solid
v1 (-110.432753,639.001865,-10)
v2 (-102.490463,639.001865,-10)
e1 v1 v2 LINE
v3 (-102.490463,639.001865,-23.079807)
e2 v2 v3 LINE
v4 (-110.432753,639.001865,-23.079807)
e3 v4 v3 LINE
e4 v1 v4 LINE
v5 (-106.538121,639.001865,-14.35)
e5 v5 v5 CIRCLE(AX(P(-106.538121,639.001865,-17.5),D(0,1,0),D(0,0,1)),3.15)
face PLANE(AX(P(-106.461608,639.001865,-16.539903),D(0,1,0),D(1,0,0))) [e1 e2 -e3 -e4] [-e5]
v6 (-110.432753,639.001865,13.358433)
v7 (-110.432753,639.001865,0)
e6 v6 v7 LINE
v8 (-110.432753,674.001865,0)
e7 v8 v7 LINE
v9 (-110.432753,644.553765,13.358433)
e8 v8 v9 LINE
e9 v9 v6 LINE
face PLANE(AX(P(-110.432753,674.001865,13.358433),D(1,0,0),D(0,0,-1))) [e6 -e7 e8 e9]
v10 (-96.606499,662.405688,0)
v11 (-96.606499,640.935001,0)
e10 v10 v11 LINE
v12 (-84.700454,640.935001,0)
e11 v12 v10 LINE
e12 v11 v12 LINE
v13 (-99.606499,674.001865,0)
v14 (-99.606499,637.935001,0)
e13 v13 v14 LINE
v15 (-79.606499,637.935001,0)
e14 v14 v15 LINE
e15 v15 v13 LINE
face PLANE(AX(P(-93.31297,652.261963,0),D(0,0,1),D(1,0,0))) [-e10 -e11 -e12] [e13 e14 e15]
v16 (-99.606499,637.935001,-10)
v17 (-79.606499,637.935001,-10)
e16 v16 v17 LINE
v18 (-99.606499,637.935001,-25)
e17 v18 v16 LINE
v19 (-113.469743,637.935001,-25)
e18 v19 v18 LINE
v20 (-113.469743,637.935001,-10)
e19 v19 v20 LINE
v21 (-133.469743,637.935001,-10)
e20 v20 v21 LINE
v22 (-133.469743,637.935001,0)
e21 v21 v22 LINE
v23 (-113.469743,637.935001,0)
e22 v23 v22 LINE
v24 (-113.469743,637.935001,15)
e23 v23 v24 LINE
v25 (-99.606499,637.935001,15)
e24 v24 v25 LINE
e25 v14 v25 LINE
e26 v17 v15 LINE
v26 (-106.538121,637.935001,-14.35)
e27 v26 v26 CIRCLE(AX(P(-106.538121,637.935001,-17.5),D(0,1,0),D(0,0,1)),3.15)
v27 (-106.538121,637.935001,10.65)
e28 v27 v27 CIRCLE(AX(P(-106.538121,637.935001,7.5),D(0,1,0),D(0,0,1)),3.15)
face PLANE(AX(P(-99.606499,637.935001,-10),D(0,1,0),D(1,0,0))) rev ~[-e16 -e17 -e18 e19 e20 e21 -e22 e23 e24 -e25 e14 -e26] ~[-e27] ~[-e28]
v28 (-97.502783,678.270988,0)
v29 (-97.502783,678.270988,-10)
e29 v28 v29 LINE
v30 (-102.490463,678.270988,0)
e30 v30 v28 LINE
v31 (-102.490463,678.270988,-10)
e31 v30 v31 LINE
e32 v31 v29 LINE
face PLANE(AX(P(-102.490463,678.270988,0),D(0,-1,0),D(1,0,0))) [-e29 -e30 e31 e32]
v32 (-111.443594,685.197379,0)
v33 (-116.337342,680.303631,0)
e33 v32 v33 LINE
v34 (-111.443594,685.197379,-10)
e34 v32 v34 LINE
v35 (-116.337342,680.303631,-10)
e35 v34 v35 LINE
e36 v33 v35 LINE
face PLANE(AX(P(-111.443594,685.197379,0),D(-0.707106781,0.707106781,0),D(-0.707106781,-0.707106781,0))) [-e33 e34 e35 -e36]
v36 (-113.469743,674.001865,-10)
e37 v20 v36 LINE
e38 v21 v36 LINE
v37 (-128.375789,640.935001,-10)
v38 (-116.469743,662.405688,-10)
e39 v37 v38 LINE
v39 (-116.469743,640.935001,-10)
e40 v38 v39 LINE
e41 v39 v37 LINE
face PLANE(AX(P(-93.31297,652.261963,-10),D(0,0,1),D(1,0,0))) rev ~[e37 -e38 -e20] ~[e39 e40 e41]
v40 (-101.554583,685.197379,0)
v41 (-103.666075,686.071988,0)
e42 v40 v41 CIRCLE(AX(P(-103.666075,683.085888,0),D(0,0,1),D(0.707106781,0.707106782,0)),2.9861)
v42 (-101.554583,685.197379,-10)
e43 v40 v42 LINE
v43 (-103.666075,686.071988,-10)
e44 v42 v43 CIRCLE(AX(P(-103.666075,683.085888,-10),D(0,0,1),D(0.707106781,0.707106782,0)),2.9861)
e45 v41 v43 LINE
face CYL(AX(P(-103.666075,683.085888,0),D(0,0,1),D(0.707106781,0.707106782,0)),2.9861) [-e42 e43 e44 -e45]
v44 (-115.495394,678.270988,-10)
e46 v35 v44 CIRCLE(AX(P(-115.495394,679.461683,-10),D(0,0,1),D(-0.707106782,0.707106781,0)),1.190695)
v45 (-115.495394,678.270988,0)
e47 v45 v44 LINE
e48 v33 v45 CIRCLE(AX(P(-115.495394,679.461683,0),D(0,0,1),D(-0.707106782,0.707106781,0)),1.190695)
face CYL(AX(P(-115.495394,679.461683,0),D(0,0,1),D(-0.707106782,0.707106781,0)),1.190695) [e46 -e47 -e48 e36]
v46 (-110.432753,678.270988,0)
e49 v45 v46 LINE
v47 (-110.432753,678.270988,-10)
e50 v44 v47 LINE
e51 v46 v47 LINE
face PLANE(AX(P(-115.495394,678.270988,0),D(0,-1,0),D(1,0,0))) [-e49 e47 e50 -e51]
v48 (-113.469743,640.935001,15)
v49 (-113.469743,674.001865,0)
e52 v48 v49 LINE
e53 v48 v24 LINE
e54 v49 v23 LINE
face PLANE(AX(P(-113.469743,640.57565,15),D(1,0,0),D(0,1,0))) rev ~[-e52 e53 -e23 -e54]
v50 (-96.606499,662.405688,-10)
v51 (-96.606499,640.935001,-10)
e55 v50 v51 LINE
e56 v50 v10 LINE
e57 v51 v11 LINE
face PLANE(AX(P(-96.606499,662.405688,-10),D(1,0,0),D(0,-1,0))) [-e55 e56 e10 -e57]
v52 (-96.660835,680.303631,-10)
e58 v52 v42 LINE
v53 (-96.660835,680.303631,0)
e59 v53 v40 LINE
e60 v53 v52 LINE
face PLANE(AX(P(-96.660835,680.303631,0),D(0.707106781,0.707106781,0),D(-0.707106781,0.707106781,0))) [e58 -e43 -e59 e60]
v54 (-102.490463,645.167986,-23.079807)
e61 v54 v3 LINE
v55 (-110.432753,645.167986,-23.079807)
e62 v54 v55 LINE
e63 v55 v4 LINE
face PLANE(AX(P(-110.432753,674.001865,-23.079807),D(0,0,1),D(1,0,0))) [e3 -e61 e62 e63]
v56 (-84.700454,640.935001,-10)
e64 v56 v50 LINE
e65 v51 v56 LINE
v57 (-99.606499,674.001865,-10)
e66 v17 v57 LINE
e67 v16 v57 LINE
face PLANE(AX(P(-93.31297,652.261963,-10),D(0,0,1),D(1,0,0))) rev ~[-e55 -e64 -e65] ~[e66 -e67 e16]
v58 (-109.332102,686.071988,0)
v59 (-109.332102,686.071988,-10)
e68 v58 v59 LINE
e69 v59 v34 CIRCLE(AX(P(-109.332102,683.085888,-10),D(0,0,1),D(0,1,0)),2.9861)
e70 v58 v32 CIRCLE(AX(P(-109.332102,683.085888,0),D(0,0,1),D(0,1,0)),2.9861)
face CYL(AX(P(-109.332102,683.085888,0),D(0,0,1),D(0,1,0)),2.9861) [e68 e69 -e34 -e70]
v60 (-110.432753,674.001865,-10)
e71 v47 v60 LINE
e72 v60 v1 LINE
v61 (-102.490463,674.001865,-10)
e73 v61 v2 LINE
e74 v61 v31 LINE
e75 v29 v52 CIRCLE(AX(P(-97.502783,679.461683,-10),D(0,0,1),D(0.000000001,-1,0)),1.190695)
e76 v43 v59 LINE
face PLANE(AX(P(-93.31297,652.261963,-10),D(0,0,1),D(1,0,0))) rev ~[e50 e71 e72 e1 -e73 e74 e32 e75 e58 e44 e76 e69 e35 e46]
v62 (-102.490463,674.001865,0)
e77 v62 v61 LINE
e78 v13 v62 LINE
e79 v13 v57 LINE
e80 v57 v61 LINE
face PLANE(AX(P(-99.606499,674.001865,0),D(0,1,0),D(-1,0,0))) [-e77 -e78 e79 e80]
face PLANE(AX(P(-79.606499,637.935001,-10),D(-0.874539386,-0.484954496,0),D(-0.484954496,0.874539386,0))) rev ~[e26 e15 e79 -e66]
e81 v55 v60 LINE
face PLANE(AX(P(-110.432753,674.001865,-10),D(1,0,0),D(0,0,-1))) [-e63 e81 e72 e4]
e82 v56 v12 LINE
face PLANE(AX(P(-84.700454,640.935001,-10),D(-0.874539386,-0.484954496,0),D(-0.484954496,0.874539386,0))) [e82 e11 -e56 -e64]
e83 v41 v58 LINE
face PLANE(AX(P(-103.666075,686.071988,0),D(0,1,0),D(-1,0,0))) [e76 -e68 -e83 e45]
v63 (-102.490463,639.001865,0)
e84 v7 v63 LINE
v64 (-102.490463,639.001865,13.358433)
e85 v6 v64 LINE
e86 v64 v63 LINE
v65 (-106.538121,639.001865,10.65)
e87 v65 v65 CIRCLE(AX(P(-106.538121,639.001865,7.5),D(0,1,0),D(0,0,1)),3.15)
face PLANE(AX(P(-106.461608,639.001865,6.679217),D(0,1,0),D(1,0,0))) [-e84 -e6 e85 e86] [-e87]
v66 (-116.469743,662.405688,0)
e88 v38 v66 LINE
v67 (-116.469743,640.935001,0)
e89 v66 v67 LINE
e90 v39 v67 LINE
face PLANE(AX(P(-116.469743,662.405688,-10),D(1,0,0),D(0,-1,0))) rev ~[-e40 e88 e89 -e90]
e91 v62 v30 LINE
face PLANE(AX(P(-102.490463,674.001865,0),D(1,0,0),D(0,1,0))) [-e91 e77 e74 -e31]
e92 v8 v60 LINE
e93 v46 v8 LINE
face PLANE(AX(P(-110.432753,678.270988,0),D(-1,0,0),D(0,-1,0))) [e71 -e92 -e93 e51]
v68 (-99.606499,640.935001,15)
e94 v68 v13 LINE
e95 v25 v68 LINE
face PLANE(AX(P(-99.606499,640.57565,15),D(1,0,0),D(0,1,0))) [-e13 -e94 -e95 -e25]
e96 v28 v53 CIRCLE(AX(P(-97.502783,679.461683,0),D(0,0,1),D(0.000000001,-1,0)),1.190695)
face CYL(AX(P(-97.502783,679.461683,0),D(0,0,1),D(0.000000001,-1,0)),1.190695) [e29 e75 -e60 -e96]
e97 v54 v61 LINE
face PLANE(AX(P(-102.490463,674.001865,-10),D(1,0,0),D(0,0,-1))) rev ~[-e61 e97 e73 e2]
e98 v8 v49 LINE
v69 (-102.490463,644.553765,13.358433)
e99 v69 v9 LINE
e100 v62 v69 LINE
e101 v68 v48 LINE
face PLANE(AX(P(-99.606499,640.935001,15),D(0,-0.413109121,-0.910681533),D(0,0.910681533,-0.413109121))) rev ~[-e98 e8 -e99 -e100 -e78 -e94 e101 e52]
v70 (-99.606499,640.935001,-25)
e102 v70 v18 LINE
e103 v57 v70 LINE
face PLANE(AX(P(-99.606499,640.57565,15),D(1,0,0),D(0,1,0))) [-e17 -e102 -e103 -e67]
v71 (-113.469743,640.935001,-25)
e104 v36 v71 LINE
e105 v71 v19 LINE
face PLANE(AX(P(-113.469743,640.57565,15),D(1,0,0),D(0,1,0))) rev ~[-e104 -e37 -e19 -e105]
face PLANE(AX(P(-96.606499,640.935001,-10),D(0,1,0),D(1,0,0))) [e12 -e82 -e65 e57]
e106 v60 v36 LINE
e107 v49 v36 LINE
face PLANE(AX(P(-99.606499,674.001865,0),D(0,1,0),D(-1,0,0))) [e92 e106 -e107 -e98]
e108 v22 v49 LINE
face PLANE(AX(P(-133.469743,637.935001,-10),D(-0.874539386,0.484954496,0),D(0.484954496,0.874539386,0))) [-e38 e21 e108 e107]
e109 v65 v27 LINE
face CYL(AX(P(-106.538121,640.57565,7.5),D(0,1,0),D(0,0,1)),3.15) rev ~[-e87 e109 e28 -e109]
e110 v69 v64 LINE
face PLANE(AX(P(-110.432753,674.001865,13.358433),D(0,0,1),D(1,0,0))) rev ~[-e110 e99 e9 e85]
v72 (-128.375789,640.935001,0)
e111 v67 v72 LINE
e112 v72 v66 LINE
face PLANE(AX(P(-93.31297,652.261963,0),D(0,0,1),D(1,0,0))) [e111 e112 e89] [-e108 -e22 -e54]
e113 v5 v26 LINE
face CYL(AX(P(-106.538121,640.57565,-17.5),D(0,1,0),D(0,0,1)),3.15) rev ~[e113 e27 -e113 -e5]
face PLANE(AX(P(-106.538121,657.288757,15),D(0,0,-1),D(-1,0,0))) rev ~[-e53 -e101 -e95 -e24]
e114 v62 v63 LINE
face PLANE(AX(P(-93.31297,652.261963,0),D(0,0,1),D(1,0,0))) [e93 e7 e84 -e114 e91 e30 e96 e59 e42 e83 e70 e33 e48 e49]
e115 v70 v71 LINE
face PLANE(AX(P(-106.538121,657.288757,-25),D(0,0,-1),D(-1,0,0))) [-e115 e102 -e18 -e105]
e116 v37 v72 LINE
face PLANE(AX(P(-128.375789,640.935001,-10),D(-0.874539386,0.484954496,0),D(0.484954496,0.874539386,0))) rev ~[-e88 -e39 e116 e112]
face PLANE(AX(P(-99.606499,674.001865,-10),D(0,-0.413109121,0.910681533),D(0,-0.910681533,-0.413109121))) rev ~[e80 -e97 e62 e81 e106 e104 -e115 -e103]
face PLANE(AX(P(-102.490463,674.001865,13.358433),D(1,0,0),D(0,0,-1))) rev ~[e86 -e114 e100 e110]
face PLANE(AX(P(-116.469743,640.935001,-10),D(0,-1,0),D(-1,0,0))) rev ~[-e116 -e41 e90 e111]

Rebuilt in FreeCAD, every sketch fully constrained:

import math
import FreeCAD as App
import Part
import Sketcher

V = App.Vector
Q = App.Units.Quantity


def add_polygon(sketch, points):
    """Adds a closed chain of lines whose ends are joined by coincident constraints."""
    first, n = sketch.GeometryCount, len(points)
    for a, b in zip(points, points[1:] + points[:1]):
        sketch.addGeometry(Part.LineSegment(App.Vector(*a, 0), App.Vector(*b, 0)), False)
    for i in range(n):
        sketch.addConstraint(Sketcher.Constraint("Coincident", first + i, 2, first + (i + 1) % n, 1))

doc = App.newDocument("Part")
body = doc.addObject("PartDesign::Body", "Body")

sketch1 = body.newObject("Sketcher::SketchObject", "Sketch")
sketch1.AttachmentSupport = (doc.getObject("XY_Plane"), [""])
sketch1.MapMode = "FlatFace"
sketch1.addGeometry([
    Part.LineSegment(V(-102.5, 678.3, 0), V(-97.5, 678.3, 0)),
    Part.ArcOfCircle(Part.Circle(V(-97.5, 679.5, 0), V(0, 0, 1), 1.2), math.radians(-90), math.radians(45)),
    Part.LineSegment(V(-96.7, 680.3, 0), V(-101.6, 685.2, 0)),
    Part.ArcOfCircle(Part.Circle(V(-103.7, 683.1, 0), V(0, 0, 1), 3), math.radians(45), math.radians(90)),
    Part.LineSegment(V(-103.7, 686.1, 0), V(-109.3, 686.1, 0)),
    Part.ArcOfCircle(Part.Circle(V(-109.3, 683.1, 0), V(0, 0, 1), 3), math.radians(90), math.radians(135)),
    Part.LineSegment(V(-111.4, 685.2, 0), V(-116.3, 680.3, 0)),
    Part.ArcOfCircle(Part.Circle(V(-115.5, 679.5, 0), V(0, 0, 1), 1.2), math.radians(135), math.radians(270)),
    Part.LineSegment(V(-115.5, 678.3, 0), V(-110.4, 678.3, 0)),
    Part.LineSegment(V(-110.4, 678.3, 0), V(-110.4, 674, 0)),
    Part.LineSegment(V(-110.4, 674, 0), V(-113.5, 674, 0)),
    Part.LineSegment(V(-113.5, 674, 0), V(-113.5, 637.9, 0)),
    Part.LineSegment(V(-113.5, 637.9, 0), V(-99.6, 637.9, 0)),
    Part.LineSegment(V(-99.6, 637.9, 0), V(-99.6, 674, 0)),
    Part.LineSegment(V(-99.6, 674, 0), V(-102.5, 674, 0)),
    Part.LineSegment(V(-102.5, 674, 0), V(-102.5, 678.3, 0)),
], False)
sketch1.addConstraint([
    Sketcher.Constraint("Tangent", 0, 2, 1, 1),
    Sketcher.Constraint("Tangent", 1, 2, 2, 1),
    Sketcher.Constraint("Tangent", 2, 2, 3, 1),
    Sketcher.Constraint("Tangent", 3, 2, 4, 1),
    Sketcher.Constraint("Tangent", 4, 2, 5, 1),
    Sketcher.Constraint("Tangent", 5, 2, 6, 1),
    Sketcher.Constraint("Tangent", 6, 2, 7, 1),
    Sketcher.Constraint("Tangent", 7, 2, 8, 1),
    Sketcher.Constraint("Coincident", 8, 2, 9, 1),
    Sketcher.Constraint("Coincident", 9, 2, 10, 1),
    Sketcher.Constraint("Coincident", 10, 2, 11, 1),
    Sketcher.Constraint("Coincident", 11, 2, 12, 1),
    Sketcher.Constraint("Coincident", 12, 2, 13, 1),
    Sketcher.Constraint("Coincident", 13, 2, 14, 1),
    Sketcher.Constraint("Coincident", 14, 2, 15, 1),
    Sketcher.Constraint("Coincident", 15, 2, 0, 1),
    Sketcher.Constraint("Horizontal", 0),
    Sketcher.Constraint("Horizontal", 4),
    Sketcher.Constraint("Horizontal", 8),
    Sketcher.Constraint("Vertical", 9),
    Sketcher.Constraint("Horizontal", 10),
    Sketcher.Constraint("Vertical", 11),
    Sketcher.Constraint("Horizontal", 12),
    Sketcher.Constraint("Vertical", 13),
    Sketcher.Constraint("Horizontal", 14),
    Sketcher.Constraint("Vertical", 15),
    Sketcher.Constraint("Equal", 3, 5),
    Sketcher.Constraint("Equal", 1, 7),
    Sketcher.Constraint("Perpendicular", 2, 6),
    Sketcher.Constraint("Horizontal", 1, 3, 7, 3),
    Sketcher.Constraint("Horizontal", 2, 2, 5, 2),
    Sketcher.Constraint("Horizontal", 10, 2, 13, 2),
    Sketcher.Constraint("Radius", 3, Q("2.9861 mm")),
    Sketcher.Constraint("DistanceY", -1, 1, 11, 2, Q("637.935001 mm")),
    Sketcher.Constraint("Radius", 1, Q("1.190695 mm")),
    Sketcher.Constraint("DistanceY", 7, 2, 4, 2, Q("7.801 mm")),
    Sketcher.Constraint("DistanceX", 0, 1, 0, 2, Q("4.98768 mm")),
    Sketcher.Constraint("DistanceX", 8, 1, 8, 2, Q("5.062641 mm")),
    Sketcher.Constraint("DistanceX", 10, 2, 10, 1, Q("3.03699 mm")),
    Sketcher.Constraint("DistanceX", 12, 2, -1, 1, Q("99.606499 mm")),
    Sketcher.Constraint("DistanceX", 4, 2, 4, 1, Q("5.666027 mm")),
    Sketcher.Constraint("DistanceX", 12, 1, 12, 2, Q("13.863243 mm")),
    Sketcher.Constraint("DistanceY", 9, 2, 9, 1, Q("4.269123 mm")),
    Sketcher.Constraint("DistanceY", 11, 2, 11, 1, Q("36.066864 mm")),
])
pad1 = body.newObject("PartDesign::Pad", "Pad")
pad1.Profile = sketch1
pad1.Length = 10
pad1.Reversed = True

sketch2 = body.newObject("Sketcher::SketchObject", "Sketch001")
sketch2.AttachmentSupport = (doc.getObject("XY_Plane"), [""])
sketch2.MapMode = "FlatFace"
add_polygon(sketch2, [(-113.5, 640.6), (-113.5, 637.9), (-99.6, 637.9), (-99.6, 640.6)])
sketch2.addConstraint([
    Sketcher.Constraint("Vertical", 0),
    Sketcher.Constraint("Horizontal", 1),
    Sketcher.Constraint("Vertical", 2),
    Sketcher.Constraint("Horizontal", 3),
    Sketcher.Constraint("DistanceY", -1, 1, 0, 2, Q("637.935001 mm")),
    Sketcher.Constraint("DistanceY", 0, 2, 0, 1, Q("2.640649 mm")),
    Sketcher.Constraint("DistanceX", 1, 2, -1, 1, Q("99.606499 mm")),
    Sketcher.Constraint("DistanceX", 1, 1, 1, 2, Q("13.863243 mm")),
])
pad2 = body.newObject("PartDesign::Pad", "Pad001")
pad2.Profile = sketch2
pad2.Type = "TwoLengths"
pad2.Length = 15
pad2.Length2 = 25

sketch3 = body.newObject("Sketcher::SketchObject", "Sketch002")
sketch3.AttachmentSupport = (doc.getObject("XZ_Plane"), [""])
sketch3.MapMode = "FlatFace"
sketch3.AttachmentOffset = App.Placement(V(0, 0, -640.57565), App.Rotation())
sketch3.addGeometry(Part.Circle(V(-106.5, 7.5, 0), V(0, 0, 1), 3.1), False)
sketch3.addConstraint([
    Sketcher.Constraint("Diameter", 0, Q("6.3 mm")),
    Sketcher.Constraint("DistanceY", -1, 1, 0, 3, Q("7.5 mm")),
    Sketcher.Constraint("DistanceX", 0, 3, -1, 1, Q("106.538121 mm")),
])
pocket1 = body.newObject("PartDesign::Pocket", "Pocket")
pocket1.Profile = sketch3
pocket1.Length = 2.65
pocket1.Reversed = True

sketch4 = body.newObject("Sketcher::SketchObject", "Sketch003")
sketch4.AttachmentSupport = (doc.getObject("XY_Plane"), [""])
sketch4.MapMode = "FlatFace"
sketch4.AttachmentOffset = App.Placement(V(0, 0, -10), App.Rotation())
add_polygon(sketch4, [(-80, 638), (-100, 638), (-100, 674)])
add_polygon(sketch4, [(-85, 641), (-97, 662), (-97, 641)])
add_polygon(sketch4, [(-113, 638), (-133, 638), (-113, 674)])
add_polygon(sketch4, [(-116, 641), (-116, 662), (-128, 641)])
sketch4.addConstraint([
    Sketcher.Constraint("Horizontal", 0),
    Sketcher.Constraint("Vertical", 1),
    Sketcher.Constraint("Vertical", 4),
    Sketcher.Constraint("Horizontal", 5),
    Sketcher.Constraint("Horizontal", 6),
    Sketcher.Constraint("Vertical", 8),
    Sketcher.Constraint("Vertical", 9),
    Sketcher.Constraint("Horizontal", 11),
    Sketcher.Constraint("Parallel", 2, 3),
    Sketcher.Constraint("Parallel", 7, 10),
    Sketcher.Constraint("Horizontal", 2, 2, 6, 2),
    Sketcher.Constraint("Horizontal", 1, 2, 7, 2),
    Sketcher.Constraint("Horizontal", 3, 2, 9, 2),
    Sketcher.Constraint("Horizontal", 5, 2, 10, 2),
    Sketcher.Constraint("Equal", 0, 6),
    Sketcher.Constraint("DistanceX", 0, 2, 0, 1, Q("20 mm")),
    Sketcher.Constraint("DistanceX", 1, 2, 3, 2, Q("3 mm")),
    Sketcher.Constraint("DistanceY", 0, 2, 4, 2, Q("3 mm")),
    Sketcher.Constraint("DistanceX", 9, 2, 7, 2, Q("3 mm")),
    Sketcher.Constraint("DistanceY", -1, 1, 0, 2, Q("637.935001 mm")),
    Sketcher.Constraint("DistanceX", 0, 2, -1, 1, Q("99.606499 mm")),
    Sketcher.Constraint("Distance", 3, Q("24.550852 mm")),
    Sketcher.Constraint("DistanceX", 5, 1, 5, 2, Q("11.906046 mm")),
    Sketcher.Constraint("DistanceX", 10, 2, -1, 1, Q("128.375789 mm")),
])
pad3 = body.newObject("PartDesign::Pad", "Pad002")
pad3.Profile = sketch4
pad3.Length = 10

sketch5 = body.newObject("Sketcher::SketchObject", "Sketch004")
sketch5.AttachmentSupport = (doc.getObject("XZ_Plane"), [""])
sketch5.MapMode = "FlatFace"
sketch5.AttachmentOffset = App.Placement(V(0, 0, -640.57565), App.Rotation())
sketch5.addGeometry(Part.Circle(V(-106.5, -17.5, 0), V(0, 0, 1), 3.1), False)
sketch5.addConstraint([
    Sketcher.Constraint("Diameter", 0, Q("6.3 mm")),
    Sketcher.Constraint("DistanceY", 0, 3, -1, 1, Q("17.5 mm")),
    Sketcher.Constraint("DistanceX", 0, 3, -1, 1, Q("106.538121 mm")),
])
pocket2 = body.newObject("PartDesign::Pocket", "Pocket001")
pocket2.Profile = sketch5
pocket2.Length = 10
pocket2.Reversed = True

sketch6 = body.newObject("Sketcher::SketchObject", "Sketch005")
sketch6.AttachmentSupport = (doc.getObject("XY_Plane"), [""])
sketch6.MapMode = "FlatFace"
sketch6.AttachmentOffset = App.Placement(V(0, 0, -10), App.Rotation())
add_polygon(sketch6, [(-100, 674), (-100, 641), (-113, 641), (-113, 674)])
sketch6.addConstraint([
    Sketcher.Constraint("Vertical", 0),
    Sketcher.Constraint("Horizontal", 1),
    Sketcher.Constraint("Vertical", 2),
    Sketcher.Constraint("Horizontal", 3),
    Sketcher.Constraint("DistanceX", 0, 2, -1, 1, Q("99.606499 mm")),
    Sketcher.Constraint("DistanceX", 1, 2, 1, 1, Q("13.863243 mm")),
    Sketcher.Constraint("DistanceY", 0, 2, 0, 1, Q("33.426215 mm")),
    Sketcher.Constraint("DistanceY", -1, 1, 0, 2, Q("640.57565 mm")),
])
pad4 = body.newObject("PartDesign::Pad", "Pad003")
pad4.Profile = sketch6
pad4.Type = "TwoLengths"
pad4.Length = 15
pad4.Length2 = 25
pad4.Reversed = True

sketch7 = body.newObject("Sketcher::SketchObject", "Sketch006")
sketch7.AttachmentSupport = (doc.getObject("YZ_Plane"), [""])
sketch7.MapMode = "FlatFace"
sketch7.AttachmentOffset = App.Placement(V(0, 0, -99.606499), App.Rotation())
add_polygon(sketch7, [(674, -25), (674, -10), (641, -25)])
add_polygon(sketch7, [(641, 15), (674, 0), (674, 15)])
sketch7.addConstraint([
    Sketcher.Constraint("Vertical", 0),
    Sketcher.Constraint("Horizontal", 2),
    Sketcher.Constraint("Vertical", 4),
    Sketcher.Constraint("Horizontal", 5),
    Sketcher.Constraint("PointOnObject", 3, 2, -1),
    Sketcher.Constraint("Vertical", 2, 2, 3, 2),
    Sketcher.Constraint("Vertical", 1, 2, 5, 2),
    Sketcher.Constraint("Equal", 0, 4),
    Sketcher.Constraint("DistanceY", 0, 1, 0, 2, Q("15 mm")),
    Sketcher.Constraint("DistanceY", 0, 2, -1, 1, Q("10 mm")),
    Sketcher.Constraint("DistanceX", -1, 1, 1, 2, Q("640.935001 mm")),
    Sketcher.Constraint("Distance", 1, Q("36.310019 mm")),
])
pocket3 = body.newObject("PartDesign::Pocket", "Pocket002")
pocket3.Profile = sketch7
pocket3.Length = 15

sketch8 = body.newObject("Sketcher::SketchObject", "Sketch007")
sketch8.AttachmentSupport = (doc.getObject("XZ_Plane"), [""])
sketch8.MapMode = "FlatFace"
sketch8.AttachmentOffset = App.Placement(V(0, 0, -674.001865), App.Rotation())
add_polygon(sketch8, [(-110, 0), (-110, 13), (-102, 13), (-102, 0)])
add_polygon(sketch8, [(-110, -23), (-110, -10), (-102, -10), (-102, -23)])
sketch8.addConstraint([
    Sketcher.Constraint("Vertical", 0),
    Sketcher.Constraint("Horizontal", 1),
    Sketcher.Constraint("Vertical", 2),
    Sketcher.Constraint("Horizontal", 3),
    Sketcher.Constraint("Vertical", 4),
    Sketcher.Constraint("Horizontal", 5),
    Sketcher.Constraint("Vertical", 6),
    Sketcher.Constraint("Horizontal", 7),
    Sketcher.Constraint("PointOnObject", 2, 2, -1),
    Sketcher.Constraint("Vertical", 3, 2, 4, 2),
    Sketcher.Constraint("Vertical", 2, 2, 5, 2),
    Sketcher.Constraint("DistanceY", 4, 2, -1, 1, Q("10 mm")),
    Sketcher.Constraint("DistanceX", 1, 1, 1, 2, Q("7.942289 mm")),
    Sketcher.Constraint("DistanceY", 0, 1, 0, 2, Q("13.358433 mm")),
    Sketcher.Constraint("DistanceY", 4, 1, 4, 2, Q("13.079807 mm")),
    Sketcher.Constraint("DistanceX", 0, 2, -1, 1, Q("110.432753 mm")),
])
pocket4 = body.newObject("PartDesign::Pocket", "Pocket003")
pocket4.Profile = sketch8
pocket4.Length = 35
pocket4.Reversed = True

doc.recompute()
